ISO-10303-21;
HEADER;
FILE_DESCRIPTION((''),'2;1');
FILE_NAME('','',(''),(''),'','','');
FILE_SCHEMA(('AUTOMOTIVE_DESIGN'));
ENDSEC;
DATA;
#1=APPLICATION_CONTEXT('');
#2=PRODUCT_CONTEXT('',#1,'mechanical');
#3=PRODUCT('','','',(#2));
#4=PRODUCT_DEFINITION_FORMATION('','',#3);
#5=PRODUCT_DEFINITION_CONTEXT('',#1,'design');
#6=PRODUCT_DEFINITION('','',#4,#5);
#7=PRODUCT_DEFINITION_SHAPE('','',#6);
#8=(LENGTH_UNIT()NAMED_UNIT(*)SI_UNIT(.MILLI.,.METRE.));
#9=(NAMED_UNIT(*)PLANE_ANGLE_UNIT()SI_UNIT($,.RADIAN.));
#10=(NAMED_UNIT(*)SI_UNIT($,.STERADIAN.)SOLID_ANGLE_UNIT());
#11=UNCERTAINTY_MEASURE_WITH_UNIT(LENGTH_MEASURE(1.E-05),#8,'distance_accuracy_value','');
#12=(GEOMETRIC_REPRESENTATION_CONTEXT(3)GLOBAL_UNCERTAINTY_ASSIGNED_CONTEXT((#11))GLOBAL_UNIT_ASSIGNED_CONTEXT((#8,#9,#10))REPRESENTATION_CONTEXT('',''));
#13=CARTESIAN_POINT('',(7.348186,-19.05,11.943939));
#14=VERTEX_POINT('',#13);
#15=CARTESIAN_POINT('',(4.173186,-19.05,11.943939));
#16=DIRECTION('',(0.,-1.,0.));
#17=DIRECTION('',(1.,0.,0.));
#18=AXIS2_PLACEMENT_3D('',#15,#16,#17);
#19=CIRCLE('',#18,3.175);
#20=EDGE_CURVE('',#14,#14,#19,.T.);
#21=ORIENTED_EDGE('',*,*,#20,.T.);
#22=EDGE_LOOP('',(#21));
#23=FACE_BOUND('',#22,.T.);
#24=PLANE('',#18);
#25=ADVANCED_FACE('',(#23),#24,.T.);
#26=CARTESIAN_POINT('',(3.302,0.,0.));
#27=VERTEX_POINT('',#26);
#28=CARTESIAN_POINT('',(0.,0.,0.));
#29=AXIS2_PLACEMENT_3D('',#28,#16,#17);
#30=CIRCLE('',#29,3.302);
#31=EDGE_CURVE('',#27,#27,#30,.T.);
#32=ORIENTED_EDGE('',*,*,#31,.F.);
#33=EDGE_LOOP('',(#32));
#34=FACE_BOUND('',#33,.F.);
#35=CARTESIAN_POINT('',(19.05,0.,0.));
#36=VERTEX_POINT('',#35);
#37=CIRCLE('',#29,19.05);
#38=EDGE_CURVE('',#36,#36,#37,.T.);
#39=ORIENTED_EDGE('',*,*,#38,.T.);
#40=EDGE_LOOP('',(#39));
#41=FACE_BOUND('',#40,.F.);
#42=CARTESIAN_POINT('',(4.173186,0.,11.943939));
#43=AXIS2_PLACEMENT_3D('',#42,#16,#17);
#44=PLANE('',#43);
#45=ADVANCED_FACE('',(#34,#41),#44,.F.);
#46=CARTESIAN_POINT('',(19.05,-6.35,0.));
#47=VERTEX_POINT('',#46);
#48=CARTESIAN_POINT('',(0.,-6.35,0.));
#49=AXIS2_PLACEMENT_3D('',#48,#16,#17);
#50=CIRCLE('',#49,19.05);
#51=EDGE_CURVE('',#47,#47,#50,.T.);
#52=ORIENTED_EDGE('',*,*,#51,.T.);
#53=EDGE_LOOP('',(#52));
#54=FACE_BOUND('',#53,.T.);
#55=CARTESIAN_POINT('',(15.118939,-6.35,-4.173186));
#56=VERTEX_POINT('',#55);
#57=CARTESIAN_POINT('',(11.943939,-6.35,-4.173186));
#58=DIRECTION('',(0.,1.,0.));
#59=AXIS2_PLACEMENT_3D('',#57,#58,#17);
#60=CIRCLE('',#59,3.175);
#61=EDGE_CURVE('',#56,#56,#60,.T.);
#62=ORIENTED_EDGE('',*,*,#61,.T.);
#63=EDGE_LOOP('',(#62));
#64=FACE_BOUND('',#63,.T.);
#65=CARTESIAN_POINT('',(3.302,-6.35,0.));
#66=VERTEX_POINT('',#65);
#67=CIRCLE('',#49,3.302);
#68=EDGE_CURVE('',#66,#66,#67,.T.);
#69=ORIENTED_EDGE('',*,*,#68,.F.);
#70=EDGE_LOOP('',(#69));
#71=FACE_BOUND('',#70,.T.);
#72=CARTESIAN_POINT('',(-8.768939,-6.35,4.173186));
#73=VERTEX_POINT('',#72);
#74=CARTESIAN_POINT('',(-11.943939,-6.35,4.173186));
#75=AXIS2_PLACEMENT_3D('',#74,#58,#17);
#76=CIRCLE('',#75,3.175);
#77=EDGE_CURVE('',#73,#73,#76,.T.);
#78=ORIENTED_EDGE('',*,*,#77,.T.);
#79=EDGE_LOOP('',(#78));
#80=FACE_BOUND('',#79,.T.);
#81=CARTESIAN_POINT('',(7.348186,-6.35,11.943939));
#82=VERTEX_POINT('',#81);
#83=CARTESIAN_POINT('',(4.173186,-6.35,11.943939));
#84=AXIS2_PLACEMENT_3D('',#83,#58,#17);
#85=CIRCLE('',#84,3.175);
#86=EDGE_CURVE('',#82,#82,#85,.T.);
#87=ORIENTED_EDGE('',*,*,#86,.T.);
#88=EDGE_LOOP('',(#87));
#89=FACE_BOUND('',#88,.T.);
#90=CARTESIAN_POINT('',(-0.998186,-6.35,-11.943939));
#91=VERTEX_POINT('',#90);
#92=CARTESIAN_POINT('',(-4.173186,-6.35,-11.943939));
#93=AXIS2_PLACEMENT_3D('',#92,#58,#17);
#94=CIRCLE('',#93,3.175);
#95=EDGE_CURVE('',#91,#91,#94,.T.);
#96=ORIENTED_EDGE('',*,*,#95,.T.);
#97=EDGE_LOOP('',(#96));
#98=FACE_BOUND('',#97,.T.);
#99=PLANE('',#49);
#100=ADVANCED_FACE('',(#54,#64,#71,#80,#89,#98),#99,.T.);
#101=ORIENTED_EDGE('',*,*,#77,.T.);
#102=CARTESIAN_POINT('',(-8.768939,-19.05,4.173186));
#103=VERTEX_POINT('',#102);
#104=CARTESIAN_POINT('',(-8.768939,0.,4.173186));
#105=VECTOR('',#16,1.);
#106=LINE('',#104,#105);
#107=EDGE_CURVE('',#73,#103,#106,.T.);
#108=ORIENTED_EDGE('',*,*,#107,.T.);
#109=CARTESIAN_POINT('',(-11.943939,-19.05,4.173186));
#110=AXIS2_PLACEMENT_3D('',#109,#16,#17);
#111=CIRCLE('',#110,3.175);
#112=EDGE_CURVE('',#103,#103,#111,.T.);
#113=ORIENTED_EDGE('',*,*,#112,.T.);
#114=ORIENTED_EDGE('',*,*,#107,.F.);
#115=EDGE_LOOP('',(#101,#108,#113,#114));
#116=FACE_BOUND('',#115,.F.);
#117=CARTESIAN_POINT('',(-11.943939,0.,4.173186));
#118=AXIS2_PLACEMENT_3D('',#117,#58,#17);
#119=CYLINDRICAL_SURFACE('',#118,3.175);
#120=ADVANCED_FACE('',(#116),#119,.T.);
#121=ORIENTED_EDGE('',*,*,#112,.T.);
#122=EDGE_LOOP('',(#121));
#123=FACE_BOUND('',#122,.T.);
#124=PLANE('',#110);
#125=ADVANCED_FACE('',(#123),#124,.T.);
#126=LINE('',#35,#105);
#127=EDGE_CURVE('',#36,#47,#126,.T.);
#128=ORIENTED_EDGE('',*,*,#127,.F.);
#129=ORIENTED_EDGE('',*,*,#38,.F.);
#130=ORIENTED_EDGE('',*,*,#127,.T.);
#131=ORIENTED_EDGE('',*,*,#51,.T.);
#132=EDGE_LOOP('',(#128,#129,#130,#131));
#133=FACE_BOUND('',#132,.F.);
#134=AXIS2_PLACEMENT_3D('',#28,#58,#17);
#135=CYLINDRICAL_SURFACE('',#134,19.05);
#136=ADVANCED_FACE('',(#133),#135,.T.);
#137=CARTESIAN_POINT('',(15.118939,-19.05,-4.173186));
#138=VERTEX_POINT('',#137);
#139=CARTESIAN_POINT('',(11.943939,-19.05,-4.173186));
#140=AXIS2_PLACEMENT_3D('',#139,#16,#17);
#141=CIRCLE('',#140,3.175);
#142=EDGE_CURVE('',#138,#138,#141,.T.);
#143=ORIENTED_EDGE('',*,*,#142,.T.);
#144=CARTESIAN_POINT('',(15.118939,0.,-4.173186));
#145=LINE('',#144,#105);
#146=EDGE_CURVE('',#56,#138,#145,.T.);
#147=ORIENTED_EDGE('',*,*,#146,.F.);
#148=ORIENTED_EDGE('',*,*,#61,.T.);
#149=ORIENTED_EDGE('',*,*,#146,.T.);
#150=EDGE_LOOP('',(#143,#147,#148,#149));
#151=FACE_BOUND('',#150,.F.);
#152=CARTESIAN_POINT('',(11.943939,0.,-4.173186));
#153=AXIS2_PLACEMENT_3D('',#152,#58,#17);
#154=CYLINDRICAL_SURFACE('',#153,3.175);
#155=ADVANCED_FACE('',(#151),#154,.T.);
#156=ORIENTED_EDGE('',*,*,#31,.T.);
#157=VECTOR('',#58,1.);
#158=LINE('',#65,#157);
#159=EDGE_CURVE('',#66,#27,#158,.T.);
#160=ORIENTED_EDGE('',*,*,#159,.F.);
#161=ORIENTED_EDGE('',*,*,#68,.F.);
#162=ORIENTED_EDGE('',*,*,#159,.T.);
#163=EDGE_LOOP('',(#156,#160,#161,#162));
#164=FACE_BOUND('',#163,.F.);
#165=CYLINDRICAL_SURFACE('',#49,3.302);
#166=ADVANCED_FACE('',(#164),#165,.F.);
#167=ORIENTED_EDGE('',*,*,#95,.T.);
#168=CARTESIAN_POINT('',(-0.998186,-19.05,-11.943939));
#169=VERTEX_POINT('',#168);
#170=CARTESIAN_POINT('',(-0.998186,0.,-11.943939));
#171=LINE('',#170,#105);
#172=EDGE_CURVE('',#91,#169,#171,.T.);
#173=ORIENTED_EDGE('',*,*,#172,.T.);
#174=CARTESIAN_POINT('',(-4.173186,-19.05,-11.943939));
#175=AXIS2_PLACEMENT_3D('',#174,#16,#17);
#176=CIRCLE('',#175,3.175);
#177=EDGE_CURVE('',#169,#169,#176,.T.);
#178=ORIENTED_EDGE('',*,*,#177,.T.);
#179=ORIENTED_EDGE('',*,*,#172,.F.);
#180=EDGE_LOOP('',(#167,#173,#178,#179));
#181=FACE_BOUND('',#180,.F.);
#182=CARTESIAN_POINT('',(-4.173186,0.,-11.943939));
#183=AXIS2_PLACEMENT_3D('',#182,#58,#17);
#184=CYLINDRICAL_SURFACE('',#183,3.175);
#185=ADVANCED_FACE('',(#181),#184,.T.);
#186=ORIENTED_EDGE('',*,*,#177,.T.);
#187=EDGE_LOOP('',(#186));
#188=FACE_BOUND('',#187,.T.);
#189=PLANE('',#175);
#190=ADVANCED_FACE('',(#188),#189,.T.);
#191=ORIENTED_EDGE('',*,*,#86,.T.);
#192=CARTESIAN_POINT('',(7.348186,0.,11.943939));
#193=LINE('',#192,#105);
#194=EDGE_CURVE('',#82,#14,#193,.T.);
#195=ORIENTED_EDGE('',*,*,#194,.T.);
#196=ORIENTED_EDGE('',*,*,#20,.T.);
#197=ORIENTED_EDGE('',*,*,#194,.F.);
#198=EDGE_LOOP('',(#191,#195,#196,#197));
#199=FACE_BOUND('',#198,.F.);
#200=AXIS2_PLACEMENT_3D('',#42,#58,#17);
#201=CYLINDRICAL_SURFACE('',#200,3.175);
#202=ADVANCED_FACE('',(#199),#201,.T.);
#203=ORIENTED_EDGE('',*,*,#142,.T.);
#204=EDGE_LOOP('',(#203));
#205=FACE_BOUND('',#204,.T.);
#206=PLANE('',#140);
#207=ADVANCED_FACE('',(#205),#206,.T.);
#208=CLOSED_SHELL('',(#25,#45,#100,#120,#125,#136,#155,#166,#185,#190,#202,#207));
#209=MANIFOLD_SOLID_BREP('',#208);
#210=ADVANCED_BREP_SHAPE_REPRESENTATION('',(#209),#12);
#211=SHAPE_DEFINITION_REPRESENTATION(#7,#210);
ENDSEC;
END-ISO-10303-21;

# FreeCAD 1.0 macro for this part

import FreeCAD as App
import Part
import Sketcher

V = App.Vector
Q = App.Units.Quantity

doc = App.newDocument("Part")
params = doc.addObject("Spreadsheet::Sheet", "Params")
for row, (alias, value) in enumerate([
    ("sketch1_diameter", "1.5 in"),
    ("pad1_length", "0.25 in"),
    ("sketch2_diameter", "0.25 in"),
    ("pad2_length", "0.75 in"),
    ("sketch3_diameter", "0.26 in"),
    ("pocket1_length", "1 in"),
], start=1):
    params.set(f"A{row}", alias)
    params.set(f"B{row}", "=" + value)
    params.setAlias(f"B{row}", alias)

body = doc.addObject("PartDesign::Body", "Body")

sketch1 = doc.addObject("Sketcher::SketchObject", "Sketch")
body.addObject(sketch1)
sketch1.AttachmentSupport = (doc.XZ_Plane, [""])
sketch1.MapMode = "FlatFace"
sketch1.addGeometry(Part.Circle(V(0, 0, 0), V(0, 0, 1), 19), False)
sketch1.addConstraint(Sketcher.Constraint("Coincident", 0, 3, -1, 1))
sketch1.addConstraint(Sketcher.Constraint("Diameter", 0, Q("1.5 in")))
sketch1.setExpression("Constraints[1]", "Params.sketch1_diameter")
pad1 = doc.addObject("PartDesign::Pad", "Pad")
body.addObject(pad1)
pad1.Profile = sketch1
pad1.setExpression("Length", "Params.pad1_length")

sketch2 = doc.addObject("Sketcher::SketchObject", "Sketch001")
body.addObject(sketch2)
sketch2.AttachmentSupport = (doc.XZ_Plane, [""])
sketch2.MapMode = "FlatFace"
sketch2.addGeometry(Part.Circle(V(4.2, 11.9, 0), V(0, 0, 1), 3.2), False)
sketch2.addGeometry(Part.Circle(V(-11.9, 4.2, 0), V(0, 0, 1), 3.2), False)
sketch2.addGeometry(Part.Circle(V(-4.2, -11.9, 0), V(0, 0, 1), 3.2), False)
sketch2.addGeometry(Part.Circle(V(11.9, -4.2, 0), V(0, 0, 1), 3.2), False)
sketch2.addConstraint(Sketcher.Constraint("Equal", 0, 1))
sketch2.addConstraint(Sketcher.Constraint("Equal", 1, 2))
sketch2.addConstraint(Sketcher.Constraint("Equal", 2, 3))
sketch2.addConstraint(Sketcher.Constraint("Symmetric", 0, 3, 2, 3, -1, 1))
sketch2.addConstraint(Sketcher.Constraint("Symmetric", 1, 3, 3, 3, -1, 1))
sketch2.addConstraint(Sketcher.Constraint("Diameter", 0, Q("0.25 in")))
sketch2.addConstraint(Sketcher.Constraint("DistanceY", -1, 1, 0, 3, Q("11.943939 mm")))
sketch2.addConstraint(Sketcher.Constraint("DistanceX", 1, 3, -1, 1, Q("11.943939 mm")))
sketch2.addConstraint(Sketcher.Constraint("DistanceX", -1, 1, 0, 3, Q("4.173186 mm")))
sketch2.addConstraint(Sketcher.Constraint("DistanceY", -1, 1, 1, 3, Q("4.173186 mm")))
sketch2.setExpression("Constraints[5]", "Params.sketch2_diameter")
pad2 = doc.addObject("PartDesign::Pad", "Pad001")
body.addObject(pad2)
pad2.Profile = sketch2
pad2.setExpression("Length", "Params.pad2_length")

sketch3 = doc.addObject("Sketcher::SketchObject", "Sketch002")
body.addObject(sketch3)
sketch3.AttachmentSupport = (doc.XZ_Plane, [""])
sketch3.MapMode = "FlatFace"
sketch3.AttachmentOffset = App.Placement(V(0, 0, 0.25 * 25.4), App.Rotation())
sketch3.addGeometry(Part.Circle(V(0, 0, 0), V(0, 0, 1), 3.3), False)
sketch3.addConstraint(Sketcher.Constraint("Coincident", 0, 3, -1, 1))
sketch3.addConstraint(Sketcher.Constraint("Diameter", 0, Q("0.26 in")))
sketch3.setExpression("Constraints[1]", "Params.sketch3_diameter")
pocket1 = doc.addObject("PartDesign::Pocket", "Pocket")
body.addObject(pocket1)
pocket1.Profile = sketch3
pocket1.setExpression("Length", "Params.pocket1_length")

doc.recompute()
